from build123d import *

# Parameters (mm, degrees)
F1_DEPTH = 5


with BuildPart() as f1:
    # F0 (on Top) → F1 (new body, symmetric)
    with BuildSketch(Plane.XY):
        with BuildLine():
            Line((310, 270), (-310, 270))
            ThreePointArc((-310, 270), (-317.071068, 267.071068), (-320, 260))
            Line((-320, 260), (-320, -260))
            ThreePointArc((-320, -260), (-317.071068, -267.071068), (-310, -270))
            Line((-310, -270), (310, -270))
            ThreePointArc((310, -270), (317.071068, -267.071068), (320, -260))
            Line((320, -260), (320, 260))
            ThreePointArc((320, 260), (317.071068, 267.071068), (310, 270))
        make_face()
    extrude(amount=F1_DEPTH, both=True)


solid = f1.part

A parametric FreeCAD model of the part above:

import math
import FreeCAD as App
import Part
import Sketcher
from FreeCAD import Vector

doc = App.newDocument("Part")
body = doc.addObject("PartDesign::Body", "Body")

sketch1 = body.newObject("Sketcher::SketchObject", "Sketch")
sketch1.AttachmentSupport = (doc.getObject("XY_Plane"), [""])
sketch1.MapMode = "FlatFace"
sketch1.addGeometry([
    Part.LineSegment(Vector(310, 270, 0), Vector(-310, 270, 0)),
    Part.ArcOfCircle(Part.Circle(Vector(-310, 260, 0), Vector(0, 0, 1), 10), math.radians(90), math.radians(180)),
    Part.LineSegment(Vector(-320, 260, 0), Vector(-320, -260, 0)),
    Part.ArcOfCircle(Part.Circle(Vector(-310, -260, 0), Vector(0, 0, 1), 10), math.radians(180), math.radians(270)),
    Part.LineSegment(Vector(-310, -270, 0), Vector(310, -270, 0)),
    Part.ArcOfCircle(Part.Circle(Vector(310, -260, 0), Vector(0, 0, 1), 10), math.radians(-90), math.radians(0)),
    Part.LineSegment(Vector(320, -260, 0), Vector(320, 260, 0)),
    Part.ArcOfCircle(Part.Circle(Vector(310, 260, 0), Vector(0, 0, 1), 10), math.radians(0), math.radians(90)),
], False)
sketch1.addConstraint([
    Sketcher.Constraint("Tangent", 0, 2, 1, 1),
    Sketcher.Constraint("Tangent", 1, 2, 2, 1),
    Sketcher.Constraint("Tangent", 2, 2, 3, 1),
    Sketcher.Constraint("Tangent", 3, 2, 4, 1),
    Sketcher.Constraint("Tangent", 4, 2, 5, 1),
    Sketcher.Constraint("Tangent", 5, 2, 6, 1),
    Sketcher.Constraint("Tangent", 6, 2, 7, 1),
    Sketcher.Constraint("Tangent", 7, 2, 0, 1),
    Sketcher.Constraint("Horizontal", 0),
    Sketcher.Constraint("Vertical", 2),
    Sketcher.Constraint("Horizontal", 4),
    Sketcher.Constraint("Vertical", 6),
    Sketcher.Constraint("Equal", 1, 3),
    Sketcher.Constraint("Equal", 3, 5),
    Sketcher.Constraint("Equal", 5, 7),
    Sketcher.Constraint("Symmetric", 1, 3, 5, 3, -1, 1),
    Sketcher.Constraint("Radius", 1, 9.999999),
    Sketcher.Constraint("DistanceX", 0, 2, 0, 1, 620.0),
    Sketcher.Constraint("DistanceY", 2, 2, 2, 1, 520.0),
])
pad1 = body.newObject("PartDesign::Pad", "Pad")
pad1.Profile = sketch1
pad1.Length = 10
pad1.Midplane = True

doc.recompute()
